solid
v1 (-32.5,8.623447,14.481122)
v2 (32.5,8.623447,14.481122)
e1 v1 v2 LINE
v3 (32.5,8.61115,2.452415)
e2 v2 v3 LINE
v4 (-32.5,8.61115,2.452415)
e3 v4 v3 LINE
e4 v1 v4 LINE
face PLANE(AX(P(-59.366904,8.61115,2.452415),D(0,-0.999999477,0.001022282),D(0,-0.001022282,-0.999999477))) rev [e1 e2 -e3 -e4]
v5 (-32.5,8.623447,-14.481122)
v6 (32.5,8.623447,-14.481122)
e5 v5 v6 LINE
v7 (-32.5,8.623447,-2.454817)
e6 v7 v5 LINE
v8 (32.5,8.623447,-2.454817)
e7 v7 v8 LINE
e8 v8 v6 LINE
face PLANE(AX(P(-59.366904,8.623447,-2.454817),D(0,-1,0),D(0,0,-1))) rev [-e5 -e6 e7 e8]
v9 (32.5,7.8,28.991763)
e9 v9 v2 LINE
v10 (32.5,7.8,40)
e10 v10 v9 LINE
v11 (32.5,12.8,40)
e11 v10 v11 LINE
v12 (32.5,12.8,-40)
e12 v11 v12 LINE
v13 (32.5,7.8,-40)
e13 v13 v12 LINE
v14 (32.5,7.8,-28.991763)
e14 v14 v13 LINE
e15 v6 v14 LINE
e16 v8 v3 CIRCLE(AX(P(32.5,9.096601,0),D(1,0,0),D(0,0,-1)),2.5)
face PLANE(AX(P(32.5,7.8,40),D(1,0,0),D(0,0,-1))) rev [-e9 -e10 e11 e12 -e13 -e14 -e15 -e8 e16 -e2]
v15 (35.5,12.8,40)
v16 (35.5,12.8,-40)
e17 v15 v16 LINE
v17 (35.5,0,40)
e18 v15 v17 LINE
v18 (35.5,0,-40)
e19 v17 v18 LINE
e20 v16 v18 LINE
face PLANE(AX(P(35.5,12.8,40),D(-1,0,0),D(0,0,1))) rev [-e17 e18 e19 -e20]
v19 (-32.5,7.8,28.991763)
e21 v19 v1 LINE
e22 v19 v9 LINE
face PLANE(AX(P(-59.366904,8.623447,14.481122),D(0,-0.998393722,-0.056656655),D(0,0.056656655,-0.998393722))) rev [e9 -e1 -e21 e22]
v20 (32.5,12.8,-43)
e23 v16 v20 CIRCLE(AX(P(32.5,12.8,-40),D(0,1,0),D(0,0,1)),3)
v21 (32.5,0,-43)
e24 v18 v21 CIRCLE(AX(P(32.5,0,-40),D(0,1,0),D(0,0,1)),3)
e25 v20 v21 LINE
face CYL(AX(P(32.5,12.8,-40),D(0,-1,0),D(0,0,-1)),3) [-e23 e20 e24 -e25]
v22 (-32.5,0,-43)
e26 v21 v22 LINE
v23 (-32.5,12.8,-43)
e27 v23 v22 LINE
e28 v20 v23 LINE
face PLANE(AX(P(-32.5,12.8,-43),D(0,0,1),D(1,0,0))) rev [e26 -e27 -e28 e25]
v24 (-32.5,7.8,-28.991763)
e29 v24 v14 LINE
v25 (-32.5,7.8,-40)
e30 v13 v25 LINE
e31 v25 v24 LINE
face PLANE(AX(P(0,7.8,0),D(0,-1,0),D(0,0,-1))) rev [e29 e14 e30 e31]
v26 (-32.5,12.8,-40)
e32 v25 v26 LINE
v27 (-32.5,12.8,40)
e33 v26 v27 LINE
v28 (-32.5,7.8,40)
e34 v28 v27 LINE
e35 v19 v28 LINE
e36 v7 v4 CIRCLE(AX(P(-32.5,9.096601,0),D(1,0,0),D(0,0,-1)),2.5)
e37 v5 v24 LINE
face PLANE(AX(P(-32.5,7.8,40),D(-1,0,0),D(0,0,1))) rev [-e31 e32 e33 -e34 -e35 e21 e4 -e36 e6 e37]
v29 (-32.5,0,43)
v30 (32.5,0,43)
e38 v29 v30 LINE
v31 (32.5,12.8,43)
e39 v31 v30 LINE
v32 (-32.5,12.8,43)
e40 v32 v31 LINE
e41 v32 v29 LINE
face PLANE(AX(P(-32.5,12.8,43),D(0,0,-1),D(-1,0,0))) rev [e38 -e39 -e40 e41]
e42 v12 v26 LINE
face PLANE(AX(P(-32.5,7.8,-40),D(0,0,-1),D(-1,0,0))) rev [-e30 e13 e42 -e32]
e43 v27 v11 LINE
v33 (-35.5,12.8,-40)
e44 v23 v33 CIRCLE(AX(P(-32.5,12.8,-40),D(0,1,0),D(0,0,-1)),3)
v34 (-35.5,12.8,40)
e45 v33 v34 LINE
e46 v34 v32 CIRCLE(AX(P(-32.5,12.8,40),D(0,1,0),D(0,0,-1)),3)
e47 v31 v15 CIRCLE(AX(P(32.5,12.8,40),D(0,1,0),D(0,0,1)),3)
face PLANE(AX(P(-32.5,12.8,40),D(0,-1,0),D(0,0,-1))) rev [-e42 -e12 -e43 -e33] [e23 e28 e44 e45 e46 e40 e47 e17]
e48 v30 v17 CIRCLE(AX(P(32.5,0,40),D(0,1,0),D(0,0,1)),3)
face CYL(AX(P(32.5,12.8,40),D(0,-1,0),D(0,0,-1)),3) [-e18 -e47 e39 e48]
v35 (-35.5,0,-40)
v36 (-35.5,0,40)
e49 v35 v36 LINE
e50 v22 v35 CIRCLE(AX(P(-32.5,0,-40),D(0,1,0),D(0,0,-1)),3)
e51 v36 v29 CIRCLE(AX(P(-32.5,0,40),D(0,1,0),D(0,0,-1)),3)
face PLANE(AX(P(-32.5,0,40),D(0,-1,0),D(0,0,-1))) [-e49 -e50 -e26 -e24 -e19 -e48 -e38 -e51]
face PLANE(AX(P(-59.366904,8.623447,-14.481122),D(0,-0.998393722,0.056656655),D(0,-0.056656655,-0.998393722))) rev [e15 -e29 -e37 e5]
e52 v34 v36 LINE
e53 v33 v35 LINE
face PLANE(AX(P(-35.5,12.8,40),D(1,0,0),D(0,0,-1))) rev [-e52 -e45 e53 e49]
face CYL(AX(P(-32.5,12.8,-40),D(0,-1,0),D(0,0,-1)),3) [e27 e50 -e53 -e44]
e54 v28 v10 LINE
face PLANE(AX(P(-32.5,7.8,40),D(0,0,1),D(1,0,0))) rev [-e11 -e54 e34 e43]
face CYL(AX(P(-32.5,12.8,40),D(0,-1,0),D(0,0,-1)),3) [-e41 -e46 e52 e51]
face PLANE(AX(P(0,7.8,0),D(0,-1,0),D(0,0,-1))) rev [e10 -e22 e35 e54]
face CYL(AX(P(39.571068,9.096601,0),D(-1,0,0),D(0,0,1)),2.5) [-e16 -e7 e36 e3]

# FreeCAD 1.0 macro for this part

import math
import FreeCAD as App
import Part
import Sketcher


def add_polygon(sketch, points):
    """Adds a closed chain of lines whose ends are joined by coincident constraints."""
    first, n = sketch.GeometryCount, len(points)
    for a, b in zip(points, points[1:] + points[:1]):
        sketch.addGeometry(Part.LineSegment(App.Vector(*a, 0), App.Vector(*b, 0)), False)
    for i in range(n):
        sketch.addConstraint(Sketcher.Constraint("Coincident", first + i, 2, first + (i + 1) % n, 1))

doc = App.newDocument("Part")
body = doc.addObject("PartDesign::Body", "Body")

# Sketch on XZ plane
sketch1 = body.newObject("Sketcher::SketchObject", "Sketch")
sketch1.AttachmentSupport = (doc.getObject("XZ_Plane"), [""])
sketch1.MapMode = "FlatFace"
sketch1.addGeometry(Part.LineSegment(App.Vector(-32.5, 43, 0), App.Vector(32.5, 43, 0)), False)
sketch1.addGeometry(Part.ArcOfCircle(Part.Circle(App.Vector(32.5, 40, 0), App.Vector(0, 0, 1), 3), math.radians(0), math.radians(90)), False)
sketch1.addGeometry(Part.LineSegment(App.Vector(35.5, 40, 0), App.Vector(35.5, -40, 0)), False)
sketch1.addGeometry(Part.ArcOfCircle(Part.Circle(App.Vector(32.5, -40, 0), App.Vector(0, 0, 1), 3), math.radians(-90), math.radians(0)), False)
sketch1.addGeometry(Part.LineSegment(App.Vector(32.5, -43, 0), App.Vector(-32.5, -43, 0)), False)
sketch1.addGeometry(Part.ArcOfCircle(Part.Circle(App.Vector(-32.5, -40, 0), App.Vector(0, 0, 1), 3), math.radians(180), math.radians(270)), False)
sketch1.addGeometry(Part.LineSegment(App.Vector(-35.5, -40, 0), App.Vector(-35.5, 40, 0)), False)
sketch1.addGeometry(Part.ArcOfCircle(Part.Circle(App.Vector(-32.5, 40, 0), App.Vector(0, 0, 1), 3), math.radians(90), math.radians(180)), False)
sketch1.addConstraint(Sketcher.Constraint("Tangent", 0, 2, 1, 2))
sketch1.addConstraint(Sketcher.Constraint("Tangent", 1, 1, 2, 1))
sketch1.addConstraint(Sketcher.Constraint("Tangent", 2, 2, 3, 2))
sketch1.addConstraint(Sketcher.Constraint("Tangent", 3, 1, 4, 1))
sketch1.addConstraint(Sketcher.Constraint("Tangent", 4, 2, 5, 2))
sketch1.addConstraint(Sketcher.Constraint("Tangent", 5, 1, 6, 1))
sketch1.addConstraint(Sketcher.Constraint("Tangent", 6, 2, 7, 2))
sketch1.addConstraint(Sketcher.Constraint("Tangent", 7, 1, 0, 1))
sketch1.addConstraint(Sketcher.Constraint("Horizontal", 0))
sketch1.addConstraint(Sketcher.Constraint("Vertical", 2))
sketch1.addConstraint(Sketcher.Constraint("Horizontal", 4))
sketch1.addConstraint(Sketcher.Constraint("Vertical", 6))
sketch1.addConstraint(Sketcher.Constraint("Equal", 1, 3))
sketch1.addConstraint(Sketcher.Constraint("Equal", 3, 5))
sketch1.addConstraint(Sketcher.Constraint("Equal", 5, 7))
sketch1.addConstraint(Sketcher.Constraint("Symmetric", 1, 3, 5, 3, -1, 1))
sketch1.addConstraint(Sketcher.Constraint("Radius", 1, 3.0))
sketch1.addConstraint(Sketcher.Constraint("DistanceX", 0, 1, 0, 2, 65.0))
sketch1.addConstraint(Sketcher.Constraint("DistanceY", 2, 2, 2, 1, 80.0))
pad1 = body.newObject("PartDesign::Pad", "Pad")
pad1.Profile = sketch1
pad1.Length = 12.8
pad1.Reversed = True

# Sketch on XZ plane
sketch2 = body.newObject("Sketcher::SketchObject", "Sketch001")
sketch2.AttachmentSupport = (doc.getObject("XZ_Plane"), [""])
sketch2.MapMode = "FlatFace"
sketch2.AttachmentOffset = App.Placement(App.Vector(0, 0, -12.8), App.Rotation())
add_polygon(sketch2, [(-32.5, -40), (-32.5, 40), (32.5, 40), (32.5, -40)])  # lines 0-3
sketch2.addConstraint(Sketcher.Constraint("Vertical", 0))
sketch2.addConstraint(Sketcher.Constraint("Horizontal", 1))
sketch2.addConstraint(Sketcher.Constraint("Vertical", 2))
sketch2.addConstraint(Sketcher.Constraint("Horizontal", 3))
sketch2.addConstraint(Sketcher.Constraint("Symmetric", 0, 2, 2, 2, -1, 1))
sketch2.addConstraint(Sketcher.Constraint("DistanceX", 1, 1, 1, 2, 65.0))
sketch2.addConstraint(Sketcher.Constraint("DistanceY", 0, 1, 0, 2, 80.0))
pocket1 = body.newObject("PartDesign::Pocket", "Pocket")
pocket1.Profile = sketch2
pocket1.Length = 5
pocket1.Reversed = True

# Sketch on YZ plane
sketch3 = body.newObject("Sketcher::SketchObject", "Sketch002")
sketch3.AttachmentSupport = (doc.getObject("YZ_Plane"), [""])
sketch3.MapMode = "FlatFace"
sketch3.AttachmentOffset = App.Placement(App.Vector(0, 0, -32.5), App.Rotation())
sketch3.addGeometry(Part.Circle(App.Vector(9.096601, 0, 0), App.Vector(0, 0, 1), 2.5), False)
sketch3.addConstraint(Sketcher.Constraint("PointOnObject", 0, 3, -1))
sketch3.addConstraint(Sketcher.Constraint("Diameter", 0, 5.0))
sketch3.addConstraint(Sketcher.Constraint("DistanceX", -1, 1, 0, 3, 9.096601))
pad2 = body.newObject("PartDesign::Pad", "Pad001")
pad2.Profile = sketch3
pad2.Length = 65

# Sketch on YZ plane
sketch4 = body.newObject("Sketcher::SketchObject", "Sketch003")
sketch4.AttachmentSupport = (doc.getObject("YZ_Plane"), [""])
sketch4.MapMode = "FlatFace"
sketch4.AttachmentOffset = App.Placement(App.Vector(0, 0, -32.5), App.Rotation())
sketch4.addGeometry(Part.LineSegment(App.Vector(8.623447, -2.454817, 0), App.Vector(8.623447, -14.481122, 0)), False)
sketch4.addGeometry(Part.LineSegment(App.Vector(8.623447, -14.481122, 0), App.Vector(7.8, -28.991763, 0)), False)
sketch4.addGeometry(Part.LineSegment(App.Vector(7.8, -28.991763, 0), App.Vector(7.8, -2.137481, 0)), False)
sketch4.addGeometry(Part.ArcOfCircle(Part.Circle(App.Vector(9.096601, 0, 0), App.Vector(0, 0, 1), 2.5), math.radians(-121.241097), math.radians(-100.909694)), False)
sketch4.addGeometry(Part.LineSegment(App.Vector(8.623447, 14.481122, 0), App.Vector(8.61115, 2.452415, 0)), False)
sketch4.addGeometry(Part.ArcOfCircle(Part.Circle(App.Vector(9.096601, 0, 0), App.Vector(0, 0, 1), 2.5), math.radians(101.196842), math.radians(121.241097)), False)
sketch4.addGeometry(Part.LineSegment(App.Vector(7.8, 2.137481, 0), App.Vector(7.8, 28.991763, 0)), False)
sketch4.addGeometry(Part.LineSegment(App.Vector(7.8, 28.991763, 0), App.Vector(8.623447, 14.481122, 0)), False)
sketch4.addConstraint(Sketcher.Constraint("Coincident", 0, 2, 1, 1))
sketch4.addConstraint(Sketcher.Constraint("Coincident", 1, 2, 2, 1))
sketch4.addConstraint(Sketcher.Constraint("Coincident", 2, 2, 3, 1))
sketch4.addConstraint(Sketcher.Constraint("Coincident", 3, 2, 0, 1))
sketch4.addConstraint(Sketcher.Constraint("Coincident", 4, 2, 5, 1))
sketch4.addConstraint(Sketcher.Constraint("Coincident", 5, 2, 6, 1))
sketch4.addConstraint(Sketcher.Constraint("Coincident", 6, 2, 7, 1))
sketch4.addConstraint(Sketcher.Constraint("Coincident", 7, 2, 4, 1))
sketch4.addConstraint(Sketcher.Constraint("Vertical", 0))
sketch4.addConstraint(Sketcher.Constraint("Vertical", 2))
sketch4.addConstraint(Sketcher.Constraint("Vertical", 6))
sketch4.addConstraint(Sketcher.Constraint("Coincident", 5, 3, 3, 3))
sketch4.addConstraint(Sketcher.Constraint("Equal", 3, 5))
sketch4.addConstraint(Sketcher.Constraint("Symmetric", 2, 2, 5, 2, -1))
sketch4.addConstraint(Sketcher.Constraint("Symmetric", 0, 2, 7, 2, -1))
sketch4.addConstraint(Sketcher.Constraint("Equal", 2, 6))
sketch4.addConstraint(Sketcher.Constraint("Radius", 3, 2.5))
sketch4.addConstraint(Sketcher.Constraint("DistanceX", -1, 1, 1, 2, 7.8))
sketch4.addConstraint(Sketcher.Constraint("DistanceY", 2, 1, 2, 2, 26.854282))
sketch4.addConstraint(Sketcher.Constraint("DistanceX", -1, 1, 3, 3, 9.096601))
sketch4.addConstraint(Sketcher.Constraint("DistanceY", 0, 2, 0, 1, 12.026305))
sketch4.addConstraint(Sketcher.Constraint("DistanceX", -1, 1, 4, 2, 8.61115))
sketch4.addConstraint(Sketcher.Constraint("DistanceY", 1, 2, 0, 2, 14.510641))
pad3 = body.newObject("PartDesign::Pad", "Pad002")
pad3.Profile = sketch4
pad3.Length = 65

doc.recompute()
